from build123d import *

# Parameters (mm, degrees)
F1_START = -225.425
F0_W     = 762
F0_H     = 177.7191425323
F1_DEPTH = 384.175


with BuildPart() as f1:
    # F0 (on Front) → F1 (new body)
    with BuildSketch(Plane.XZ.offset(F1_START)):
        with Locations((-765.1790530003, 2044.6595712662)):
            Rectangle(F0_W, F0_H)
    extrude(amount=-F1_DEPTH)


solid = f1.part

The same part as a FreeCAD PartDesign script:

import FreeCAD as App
import Part
import Sketcher
Q = App.Units.Quantity

doc = App.newDocument("Part")
body = doc.addObject("PartDesign::Body", "Body")

# Sketch on XZ plane
sketch1 = doc.addObject("Sketcher::SketchObject", "Sketch")
body.addObject(sketch1)
sketch1.AttachmentSupport = (doc.XZ_Plane, [""])
sketch1.MapMode = "FlatFace"
sketch1.AttachmentOffset = App.Placement(App.Vector(0, 0, -8.875 * 25.4), App.Rotation())
sketch1.addGeometry([
    Part.LineSegment(App.Vector(-1146, 2134, 0), App.Vector(-1146, 1956, 0)),
    Part.LineSegment(App.Vector(-1146, 1956, 0), App.Vector(-384, 1956, 0)),
    Part.LineSegment(App.Vector(-384, 1956, 0), App.Vector(-384, 2134, 0)),
    Part.LineSegment(App.Vector(-384, 2134, 0), App.Vector(-1146, 2134, 0)),
], False)
sketch1.addConstraint([
    Sketcher.Constraint("Coincident", 0, 2, 1, 1),
    Sketcher.Constraint("Coincident", 1, 2, 2, 1),
    Sketcher.Constraint("Coincident", 2, 2, 3, 1),
    Sketcher.Constraint("Coincident", 3, 2, 0, 1),
    Sketcher.Constraint("Vertical", 0),
    Sketcher.Constraint("Horizontal", 1),
    Sketcher.Constraint("Vertical", 2),
    Sketcher.Constraint("Horizontal", 3),
    Sketcher.Constraint("DistanceX", 1, 1, 1, 2, Q("30 in")),
    Sketcher.Constraint("DistanceY", -1, 1, 0, 2, Q("77 in")),
    Sketcher.Constraint("DistanceY", 0, 2, 0, 1, Q("177.719143 mm")),
    Sketcher.Constraint("DistanceX", 0, 2, -1, 1, Q("1146.179053 mm")),
])
pad1 = doc.addObject("PartDesign::Pad", "Pad")
body.addObject(pad1)
pad1.Profile = sketch1
pad1.Length = Q("15.125 in")
pad1.Reversed = True

doc.recompute()
